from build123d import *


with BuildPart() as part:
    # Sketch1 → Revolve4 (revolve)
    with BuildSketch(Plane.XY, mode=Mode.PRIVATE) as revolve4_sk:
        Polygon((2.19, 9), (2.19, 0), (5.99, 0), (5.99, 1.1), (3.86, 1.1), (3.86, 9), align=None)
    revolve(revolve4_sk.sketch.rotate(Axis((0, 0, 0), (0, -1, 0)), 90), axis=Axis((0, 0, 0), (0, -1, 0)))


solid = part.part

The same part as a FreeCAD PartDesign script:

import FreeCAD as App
import Part
import Sketcher
from FreeCAD import Vector


def add_polygon(sketch, points):
    """Adds a closed chain of lines whose ends are joined by coincident constraints."""
    first, n = sketch.GeometryCount, len(points)
    for a, b in zip(points, points[1:] + points[:1]):
        sketch.addGeometry(Part.LineSegment(App.Vector(*a, 0), App.Vector(*b, 0)), False)
    for i in range(n):
        sketch.addConstraint(Sketcher.Constraint("Coincident", first + i, 2, first + (i + 1) % n, 1))

doc = App.newDocument("Part")
body = doc.addObject("PartDesign::Body", "Body")

# Sketch on XY plane
sketch1 = doc.addObject("Sketcher::SketchObject", "Sketch")
body.addObject(sketch1)
sketch1.AttachmentSupport = (doc.XY_Plane, [""])
sketch1.MapMode = "FlatFace"
add_polygon(sketch1, [(2.2, 9), (2.2, 0), (6, 0), (6, 1.1), (3.9, 1.1), (3.9, 9)])  # lines 0-5
sketch1.addConstraint(Sketcher.Constraint("Vertical", 0))
sketch1.addConstraint(Sketcher.Constraint("Horizontal", 1))
sketch1.addConstraint(Sketcher.Constraint("Vertical", 2))
sketch1.addConstraint(Sketcher.Constraint("Horizontal", 3))
sketch1.addConstraint(Sketcher.Constraint("Vertical", 4))
sketch1.addConstraint(Sketcher.Constraint("Horizontal", 5))
sketch1.addConstraint(Sketcher.Constraint("PointOnObject", 0, 2, -1))
sketch1.addConstraint(Sketcher.Constraint("DistanceY", 0, 2, 0, 1, 9.0))
sketch1.addConstraint(Sketcher.Constraint("DistanceX", 1, 1, 1, 2, 3.8))
sketch1.addConstraint(Sketcher.Constraint("DistanceY", 2, 1, 2, 2, 1.1))
sketch1.addConstraint(Sketcher.Constraint("DistanceX", 3, 2, 3, 1, 2.13))
sketch1.addConstraint(Sketcher.Constraint("DistanceX", -1, 1, 0, 2, 2.19))
revolution = doc.addObject("PartDesign::Revolution", "Revolution")
body.addObject(revolution)
revolution.Profile = sketch1
revolution.ReferenceAxis = (sketch1, ["V_Axis"])
revolution.Angle = 360

doc.recompute()
